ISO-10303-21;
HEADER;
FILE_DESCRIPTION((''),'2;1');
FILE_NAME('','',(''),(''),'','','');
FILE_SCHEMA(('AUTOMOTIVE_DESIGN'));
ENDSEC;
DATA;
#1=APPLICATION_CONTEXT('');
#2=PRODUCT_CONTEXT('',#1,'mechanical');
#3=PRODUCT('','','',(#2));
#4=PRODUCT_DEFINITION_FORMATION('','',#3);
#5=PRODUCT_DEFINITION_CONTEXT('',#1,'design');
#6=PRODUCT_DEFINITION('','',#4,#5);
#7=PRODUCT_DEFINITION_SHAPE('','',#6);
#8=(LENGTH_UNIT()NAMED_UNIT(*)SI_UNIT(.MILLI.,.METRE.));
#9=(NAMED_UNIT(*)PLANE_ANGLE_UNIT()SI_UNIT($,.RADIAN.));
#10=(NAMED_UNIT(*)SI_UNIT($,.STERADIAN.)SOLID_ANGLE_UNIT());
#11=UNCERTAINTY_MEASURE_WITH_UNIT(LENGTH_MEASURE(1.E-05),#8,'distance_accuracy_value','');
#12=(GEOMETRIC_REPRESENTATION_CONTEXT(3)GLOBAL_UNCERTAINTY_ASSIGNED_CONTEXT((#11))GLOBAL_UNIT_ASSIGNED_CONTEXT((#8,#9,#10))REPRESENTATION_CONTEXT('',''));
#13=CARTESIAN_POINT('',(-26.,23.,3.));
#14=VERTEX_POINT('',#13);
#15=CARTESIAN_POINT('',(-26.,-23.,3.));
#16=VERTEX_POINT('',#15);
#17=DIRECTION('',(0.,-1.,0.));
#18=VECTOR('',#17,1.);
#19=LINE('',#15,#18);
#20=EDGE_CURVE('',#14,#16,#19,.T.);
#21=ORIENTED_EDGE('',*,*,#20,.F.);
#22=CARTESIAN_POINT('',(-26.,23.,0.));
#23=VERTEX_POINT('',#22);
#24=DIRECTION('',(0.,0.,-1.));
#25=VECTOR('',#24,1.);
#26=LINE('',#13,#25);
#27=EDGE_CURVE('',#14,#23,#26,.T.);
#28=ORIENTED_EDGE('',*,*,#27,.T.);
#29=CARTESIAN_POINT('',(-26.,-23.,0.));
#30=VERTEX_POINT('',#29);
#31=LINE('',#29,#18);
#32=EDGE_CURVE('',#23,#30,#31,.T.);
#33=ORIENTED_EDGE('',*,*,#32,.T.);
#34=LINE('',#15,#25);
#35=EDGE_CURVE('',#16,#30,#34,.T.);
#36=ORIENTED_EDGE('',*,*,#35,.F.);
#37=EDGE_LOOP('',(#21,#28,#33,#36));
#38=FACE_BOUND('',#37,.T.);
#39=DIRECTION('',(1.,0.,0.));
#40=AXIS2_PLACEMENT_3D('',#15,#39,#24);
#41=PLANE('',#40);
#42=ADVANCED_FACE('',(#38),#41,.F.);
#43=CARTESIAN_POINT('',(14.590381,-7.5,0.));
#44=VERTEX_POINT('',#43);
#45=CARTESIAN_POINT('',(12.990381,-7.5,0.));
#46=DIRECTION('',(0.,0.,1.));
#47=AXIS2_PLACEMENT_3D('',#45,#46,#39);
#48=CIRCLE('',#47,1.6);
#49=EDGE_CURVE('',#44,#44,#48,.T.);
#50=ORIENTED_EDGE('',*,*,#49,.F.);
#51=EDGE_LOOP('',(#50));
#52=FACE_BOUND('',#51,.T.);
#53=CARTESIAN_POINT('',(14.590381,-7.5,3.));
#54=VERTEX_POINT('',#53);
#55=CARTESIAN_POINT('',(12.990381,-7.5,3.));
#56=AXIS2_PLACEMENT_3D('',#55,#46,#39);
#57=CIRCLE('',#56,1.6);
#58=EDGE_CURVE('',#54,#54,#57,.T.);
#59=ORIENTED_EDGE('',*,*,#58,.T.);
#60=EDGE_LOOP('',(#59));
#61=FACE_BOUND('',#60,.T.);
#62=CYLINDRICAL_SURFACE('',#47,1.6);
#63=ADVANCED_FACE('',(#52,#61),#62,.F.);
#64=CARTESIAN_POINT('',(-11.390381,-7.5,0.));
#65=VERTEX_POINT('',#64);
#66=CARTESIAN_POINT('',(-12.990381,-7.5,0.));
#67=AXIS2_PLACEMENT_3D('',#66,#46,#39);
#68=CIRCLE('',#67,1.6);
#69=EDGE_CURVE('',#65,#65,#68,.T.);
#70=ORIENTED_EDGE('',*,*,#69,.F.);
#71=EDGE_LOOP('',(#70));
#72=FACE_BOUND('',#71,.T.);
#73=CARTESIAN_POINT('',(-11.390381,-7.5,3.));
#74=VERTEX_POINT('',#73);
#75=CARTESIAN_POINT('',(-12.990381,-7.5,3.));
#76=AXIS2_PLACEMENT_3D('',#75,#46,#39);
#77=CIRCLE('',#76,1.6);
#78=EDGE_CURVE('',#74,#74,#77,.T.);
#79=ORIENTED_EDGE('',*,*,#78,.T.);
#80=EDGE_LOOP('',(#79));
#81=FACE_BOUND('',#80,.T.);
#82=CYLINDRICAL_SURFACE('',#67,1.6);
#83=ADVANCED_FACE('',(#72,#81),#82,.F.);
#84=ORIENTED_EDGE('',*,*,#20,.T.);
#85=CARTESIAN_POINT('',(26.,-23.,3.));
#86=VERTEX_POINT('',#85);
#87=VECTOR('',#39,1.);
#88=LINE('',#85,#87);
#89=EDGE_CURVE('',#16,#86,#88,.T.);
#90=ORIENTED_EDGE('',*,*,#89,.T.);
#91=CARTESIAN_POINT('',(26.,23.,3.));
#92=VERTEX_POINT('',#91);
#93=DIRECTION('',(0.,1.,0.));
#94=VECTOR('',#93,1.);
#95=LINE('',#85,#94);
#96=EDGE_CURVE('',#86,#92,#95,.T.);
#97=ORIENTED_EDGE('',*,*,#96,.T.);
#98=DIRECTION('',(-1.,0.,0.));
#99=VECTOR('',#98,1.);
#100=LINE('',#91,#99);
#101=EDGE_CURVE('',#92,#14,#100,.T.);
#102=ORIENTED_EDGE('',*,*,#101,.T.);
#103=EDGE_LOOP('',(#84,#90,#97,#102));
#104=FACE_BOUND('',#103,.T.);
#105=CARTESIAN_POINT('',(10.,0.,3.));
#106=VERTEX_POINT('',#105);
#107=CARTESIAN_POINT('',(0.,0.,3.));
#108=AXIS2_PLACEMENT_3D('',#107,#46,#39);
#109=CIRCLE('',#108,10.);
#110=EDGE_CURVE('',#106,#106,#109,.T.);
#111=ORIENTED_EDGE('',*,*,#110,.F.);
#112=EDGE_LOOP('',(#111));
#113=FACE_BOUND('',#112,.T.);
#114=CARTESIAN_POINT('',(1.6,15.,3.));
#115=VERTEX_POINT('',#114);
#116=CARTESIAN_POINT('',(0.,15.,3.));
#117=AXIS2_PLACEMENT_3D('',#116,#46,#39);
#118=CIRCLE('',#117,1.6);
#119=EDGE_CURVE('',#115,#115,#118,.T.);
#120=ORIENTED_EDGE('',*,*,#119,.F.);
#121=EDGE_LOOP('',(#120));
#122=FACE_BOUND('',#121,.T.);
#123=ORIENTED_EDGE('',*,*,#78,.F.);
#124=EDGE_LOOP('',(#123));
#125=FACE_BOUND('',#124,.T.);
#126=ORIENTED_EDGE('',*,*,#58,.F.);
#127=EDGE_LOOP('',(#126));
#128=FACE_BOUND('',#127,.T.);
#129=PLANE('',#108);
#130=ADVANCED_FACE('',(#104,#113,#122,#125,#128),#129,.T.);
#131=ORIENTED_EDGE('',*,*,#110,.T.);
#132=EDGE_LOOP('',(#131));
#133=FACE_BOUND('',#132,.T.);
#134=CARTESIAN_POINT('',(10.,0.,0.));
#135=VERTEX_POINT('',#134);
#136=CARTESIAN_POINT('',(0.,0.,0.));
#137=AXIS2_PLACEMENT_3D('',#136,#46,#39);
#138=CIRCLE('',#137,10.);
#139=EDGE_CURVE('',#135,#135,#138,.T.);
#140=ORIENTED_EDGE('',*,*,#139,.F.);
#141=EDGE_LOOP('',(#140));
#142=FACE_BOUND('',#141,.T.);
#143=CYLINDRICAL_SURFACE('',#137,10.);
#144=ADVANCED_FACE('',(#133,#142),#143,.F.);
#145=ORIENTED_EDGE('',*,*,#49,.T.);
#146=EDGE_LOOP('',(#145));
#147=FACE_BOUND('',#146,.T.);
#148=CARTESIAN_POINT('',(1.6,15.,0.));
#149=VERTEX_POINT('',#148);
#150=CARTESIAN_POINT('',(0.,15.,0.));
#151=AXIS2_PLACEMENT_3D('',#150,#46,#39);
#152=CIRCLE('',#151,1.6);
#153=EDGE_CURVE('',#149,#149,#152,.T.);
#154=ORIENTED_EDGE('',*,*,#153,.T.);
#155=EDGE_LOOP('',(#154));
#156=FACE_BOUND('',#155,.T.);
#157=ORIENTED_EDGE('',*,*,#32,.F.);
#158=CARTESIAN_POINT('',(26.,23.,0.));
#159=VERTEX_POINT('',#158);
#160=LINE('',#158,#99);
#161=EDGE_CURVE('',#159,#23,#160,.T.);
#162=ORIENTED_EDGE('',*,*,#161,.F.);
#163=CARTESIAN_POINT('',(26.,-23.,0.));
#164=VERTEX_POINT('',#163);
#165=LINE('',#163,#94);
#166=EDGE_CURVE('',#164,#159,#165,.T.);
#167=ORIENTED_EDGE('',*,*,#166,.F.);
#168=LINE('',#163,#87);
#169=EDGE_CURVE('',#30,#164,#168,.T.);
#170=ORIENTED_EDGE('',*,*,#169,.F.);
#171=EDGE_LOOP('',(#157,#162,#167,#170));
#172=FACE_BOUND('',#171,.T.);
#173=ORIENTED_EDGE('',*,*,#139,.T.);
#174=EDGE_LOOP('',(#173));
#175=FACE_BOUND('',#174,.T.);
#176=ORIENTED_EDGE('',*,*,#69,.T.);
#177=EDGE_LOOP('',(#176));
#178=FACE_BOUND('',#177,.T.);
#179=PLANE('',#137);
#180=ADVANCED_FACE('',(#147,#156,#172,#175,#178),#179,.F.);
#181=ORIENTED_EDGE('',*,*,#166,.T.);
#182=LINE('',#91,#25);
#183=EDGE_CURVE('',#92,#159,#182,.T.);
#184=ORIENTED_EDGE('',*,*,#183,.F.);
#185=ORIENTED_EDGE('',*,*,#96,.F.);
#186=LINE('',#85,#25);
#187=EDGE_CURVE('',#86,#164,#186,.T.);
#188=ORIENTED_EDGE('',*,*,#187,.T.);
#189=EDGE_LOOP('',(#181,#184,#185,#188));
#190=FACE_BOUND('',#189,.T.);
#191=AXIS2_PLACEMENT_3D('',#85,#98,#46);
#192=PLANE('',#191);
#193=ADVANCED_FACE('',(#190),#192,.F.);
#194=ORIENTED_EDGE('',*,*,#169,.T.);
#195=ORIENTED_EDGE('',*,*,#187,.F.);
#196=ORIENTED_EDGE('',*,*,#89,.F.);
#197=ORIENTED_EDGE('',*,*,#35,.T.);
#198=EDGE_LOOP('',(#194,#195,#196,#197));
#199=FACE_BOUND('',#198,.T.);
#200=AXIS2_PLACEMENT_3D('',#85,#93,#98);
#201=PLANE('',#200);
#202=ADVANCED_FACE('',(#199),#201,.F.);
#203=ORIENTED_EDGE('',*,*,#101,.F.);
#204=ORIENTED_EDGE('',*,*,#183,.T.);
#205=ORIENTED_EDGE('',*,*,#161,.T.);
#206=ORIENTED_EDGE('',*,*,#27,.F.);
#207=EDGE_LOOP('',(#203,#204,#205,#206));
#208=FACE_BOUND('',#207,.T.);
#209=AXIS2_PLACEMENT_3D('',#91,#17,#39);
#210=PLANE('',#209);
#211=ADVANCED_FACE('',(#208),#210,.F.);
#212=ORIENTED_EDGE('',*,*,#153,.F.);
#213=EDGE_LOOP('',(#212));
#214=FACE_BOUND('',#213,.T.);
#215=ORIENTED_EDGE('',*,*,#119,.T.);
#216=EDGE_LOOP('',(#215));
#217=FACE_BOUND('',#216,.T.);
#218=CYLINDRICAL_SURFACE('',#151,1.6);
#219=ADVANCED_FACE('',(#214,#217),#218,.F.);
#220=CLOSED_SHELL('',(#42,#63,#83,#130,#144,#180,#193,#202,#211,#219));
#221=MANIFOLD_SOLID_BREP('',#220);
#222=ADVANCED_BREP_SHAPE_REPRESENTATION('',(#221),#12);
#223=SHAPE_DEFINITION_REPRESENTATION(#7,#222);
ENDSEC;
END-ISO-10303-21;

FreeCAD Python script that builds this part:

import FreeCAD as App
import Part
import Sketcher

V = App.Vector


def add_polygon(sketch, points):
    """Adds a closed chain of lines whose ends are joined by coincident constraints."""
    first, n = sketch.GeometryCount, len(points)
    for a, b in zip(points, points[1:] + points[:1]):
        sketch.addGeometry(Part.LineSegment(App.Vector(*a, 0), App.Vector(*b, 0)), False)
    for i in range(n):
        sketch.addConstraint(Sketcher.Constraint("Coincident", first + i, 2, first + (i + 1) % n, 1))

doc = App.newDocument("Part")
body = doc.addObject("PartDesign::Body", "Body")

sketch1 = doc.addObject("Sketcher::SketchObject", "Sketch")
body.addObject(sketch1)
sketch1.AttachmentSupport = (doc.XY_Plane, [""])
sketch1.MapMode = "FlatFace"
add_polygon(sketch1, [(-26, 23), (-26, -23), (26, -23), (26, 23)])
sketch1.addConstraint([
    Sketcher.Constraint("Vertical", 0),
    Sketcher.Constraint("Horizontal", 1),
    Sketcher.Constraint("Vertical", 2),
    Sketcher.Constraint("Horizontal", 3),
    Sketcher.Constraint("Symmetric", 0, 2, 2, 2, -1, 1),
    Sketcher.Constraint("DistanceX", 1, 1, 1, 2, 52.0),
    Sketcher.Constraint("DistanceY", 0, 2, 0, 1, 46.0),
])
pad1 = doc.addObject("PartDesign::Pad", "Pad")
body.addObject(pad1)
pad1.Profile = sketch1
pad1.Length = 3

sketch2 = doc.addObject("Sketcher::SketchObject", "Sketch001")
body.addObject(sketch2)
sketch2.AttachmentSupport = (doc.XY_Plane, [""])
sketch2.MapMode = "FlatFace"
sketch2.AttachmentOffset = App.Placement(V(0, 0, 3), App.Rotation())
sketch2.addGeometry([
    Part.Circle(V(0, 0, 0), V(0, 0, 1), 10),
    Part.Circle(V(0, 15, 0), V(0, 0, 1), 1.6),
    Part.Circle(V(12.990381, -7.5, 0), V(0, 0, 1), 1.6),
    Part.Circle(V(-12.990381, -7.5, 0), V(0, 0, 1), 1.6),
], False)
sketch2.addConstraint([
    Sketcher.Constraint("Coincident", 0, 3, -1, 1),
    Sketcher.Constraint("Equal", 1, 2),
    Sketcher.Constraint("Equal", 2, 3),
    Sketcher.Constraint("Symmetric", 2, 3, 3, 3, -2),
    Sketcher.Constraint("PointOnObject", 1, 3, -2),
    Sketcher.Constraint("Diameter", 0, 20.0),
    Sketcher.Constraint("Diameter", 1, 3.2),
    Sketcher.Constraint("DistanceY", -1, 1, 1, 3, 15.0),
    Sketcher.Constraint("DistanceY", 2, 3, -1, 1, 7.5),
    Sketcher.Constraint("DistanceX", -1, 1, 2, 3, 12.990381),
])
pocket1 = doc.addObject("PartDesign::Pocket", "Pocket")
body.addObject(pocket1)
pocket1.Profile = sketch2
pocket1.Type = "ThroughAll"

doc.recompute()
